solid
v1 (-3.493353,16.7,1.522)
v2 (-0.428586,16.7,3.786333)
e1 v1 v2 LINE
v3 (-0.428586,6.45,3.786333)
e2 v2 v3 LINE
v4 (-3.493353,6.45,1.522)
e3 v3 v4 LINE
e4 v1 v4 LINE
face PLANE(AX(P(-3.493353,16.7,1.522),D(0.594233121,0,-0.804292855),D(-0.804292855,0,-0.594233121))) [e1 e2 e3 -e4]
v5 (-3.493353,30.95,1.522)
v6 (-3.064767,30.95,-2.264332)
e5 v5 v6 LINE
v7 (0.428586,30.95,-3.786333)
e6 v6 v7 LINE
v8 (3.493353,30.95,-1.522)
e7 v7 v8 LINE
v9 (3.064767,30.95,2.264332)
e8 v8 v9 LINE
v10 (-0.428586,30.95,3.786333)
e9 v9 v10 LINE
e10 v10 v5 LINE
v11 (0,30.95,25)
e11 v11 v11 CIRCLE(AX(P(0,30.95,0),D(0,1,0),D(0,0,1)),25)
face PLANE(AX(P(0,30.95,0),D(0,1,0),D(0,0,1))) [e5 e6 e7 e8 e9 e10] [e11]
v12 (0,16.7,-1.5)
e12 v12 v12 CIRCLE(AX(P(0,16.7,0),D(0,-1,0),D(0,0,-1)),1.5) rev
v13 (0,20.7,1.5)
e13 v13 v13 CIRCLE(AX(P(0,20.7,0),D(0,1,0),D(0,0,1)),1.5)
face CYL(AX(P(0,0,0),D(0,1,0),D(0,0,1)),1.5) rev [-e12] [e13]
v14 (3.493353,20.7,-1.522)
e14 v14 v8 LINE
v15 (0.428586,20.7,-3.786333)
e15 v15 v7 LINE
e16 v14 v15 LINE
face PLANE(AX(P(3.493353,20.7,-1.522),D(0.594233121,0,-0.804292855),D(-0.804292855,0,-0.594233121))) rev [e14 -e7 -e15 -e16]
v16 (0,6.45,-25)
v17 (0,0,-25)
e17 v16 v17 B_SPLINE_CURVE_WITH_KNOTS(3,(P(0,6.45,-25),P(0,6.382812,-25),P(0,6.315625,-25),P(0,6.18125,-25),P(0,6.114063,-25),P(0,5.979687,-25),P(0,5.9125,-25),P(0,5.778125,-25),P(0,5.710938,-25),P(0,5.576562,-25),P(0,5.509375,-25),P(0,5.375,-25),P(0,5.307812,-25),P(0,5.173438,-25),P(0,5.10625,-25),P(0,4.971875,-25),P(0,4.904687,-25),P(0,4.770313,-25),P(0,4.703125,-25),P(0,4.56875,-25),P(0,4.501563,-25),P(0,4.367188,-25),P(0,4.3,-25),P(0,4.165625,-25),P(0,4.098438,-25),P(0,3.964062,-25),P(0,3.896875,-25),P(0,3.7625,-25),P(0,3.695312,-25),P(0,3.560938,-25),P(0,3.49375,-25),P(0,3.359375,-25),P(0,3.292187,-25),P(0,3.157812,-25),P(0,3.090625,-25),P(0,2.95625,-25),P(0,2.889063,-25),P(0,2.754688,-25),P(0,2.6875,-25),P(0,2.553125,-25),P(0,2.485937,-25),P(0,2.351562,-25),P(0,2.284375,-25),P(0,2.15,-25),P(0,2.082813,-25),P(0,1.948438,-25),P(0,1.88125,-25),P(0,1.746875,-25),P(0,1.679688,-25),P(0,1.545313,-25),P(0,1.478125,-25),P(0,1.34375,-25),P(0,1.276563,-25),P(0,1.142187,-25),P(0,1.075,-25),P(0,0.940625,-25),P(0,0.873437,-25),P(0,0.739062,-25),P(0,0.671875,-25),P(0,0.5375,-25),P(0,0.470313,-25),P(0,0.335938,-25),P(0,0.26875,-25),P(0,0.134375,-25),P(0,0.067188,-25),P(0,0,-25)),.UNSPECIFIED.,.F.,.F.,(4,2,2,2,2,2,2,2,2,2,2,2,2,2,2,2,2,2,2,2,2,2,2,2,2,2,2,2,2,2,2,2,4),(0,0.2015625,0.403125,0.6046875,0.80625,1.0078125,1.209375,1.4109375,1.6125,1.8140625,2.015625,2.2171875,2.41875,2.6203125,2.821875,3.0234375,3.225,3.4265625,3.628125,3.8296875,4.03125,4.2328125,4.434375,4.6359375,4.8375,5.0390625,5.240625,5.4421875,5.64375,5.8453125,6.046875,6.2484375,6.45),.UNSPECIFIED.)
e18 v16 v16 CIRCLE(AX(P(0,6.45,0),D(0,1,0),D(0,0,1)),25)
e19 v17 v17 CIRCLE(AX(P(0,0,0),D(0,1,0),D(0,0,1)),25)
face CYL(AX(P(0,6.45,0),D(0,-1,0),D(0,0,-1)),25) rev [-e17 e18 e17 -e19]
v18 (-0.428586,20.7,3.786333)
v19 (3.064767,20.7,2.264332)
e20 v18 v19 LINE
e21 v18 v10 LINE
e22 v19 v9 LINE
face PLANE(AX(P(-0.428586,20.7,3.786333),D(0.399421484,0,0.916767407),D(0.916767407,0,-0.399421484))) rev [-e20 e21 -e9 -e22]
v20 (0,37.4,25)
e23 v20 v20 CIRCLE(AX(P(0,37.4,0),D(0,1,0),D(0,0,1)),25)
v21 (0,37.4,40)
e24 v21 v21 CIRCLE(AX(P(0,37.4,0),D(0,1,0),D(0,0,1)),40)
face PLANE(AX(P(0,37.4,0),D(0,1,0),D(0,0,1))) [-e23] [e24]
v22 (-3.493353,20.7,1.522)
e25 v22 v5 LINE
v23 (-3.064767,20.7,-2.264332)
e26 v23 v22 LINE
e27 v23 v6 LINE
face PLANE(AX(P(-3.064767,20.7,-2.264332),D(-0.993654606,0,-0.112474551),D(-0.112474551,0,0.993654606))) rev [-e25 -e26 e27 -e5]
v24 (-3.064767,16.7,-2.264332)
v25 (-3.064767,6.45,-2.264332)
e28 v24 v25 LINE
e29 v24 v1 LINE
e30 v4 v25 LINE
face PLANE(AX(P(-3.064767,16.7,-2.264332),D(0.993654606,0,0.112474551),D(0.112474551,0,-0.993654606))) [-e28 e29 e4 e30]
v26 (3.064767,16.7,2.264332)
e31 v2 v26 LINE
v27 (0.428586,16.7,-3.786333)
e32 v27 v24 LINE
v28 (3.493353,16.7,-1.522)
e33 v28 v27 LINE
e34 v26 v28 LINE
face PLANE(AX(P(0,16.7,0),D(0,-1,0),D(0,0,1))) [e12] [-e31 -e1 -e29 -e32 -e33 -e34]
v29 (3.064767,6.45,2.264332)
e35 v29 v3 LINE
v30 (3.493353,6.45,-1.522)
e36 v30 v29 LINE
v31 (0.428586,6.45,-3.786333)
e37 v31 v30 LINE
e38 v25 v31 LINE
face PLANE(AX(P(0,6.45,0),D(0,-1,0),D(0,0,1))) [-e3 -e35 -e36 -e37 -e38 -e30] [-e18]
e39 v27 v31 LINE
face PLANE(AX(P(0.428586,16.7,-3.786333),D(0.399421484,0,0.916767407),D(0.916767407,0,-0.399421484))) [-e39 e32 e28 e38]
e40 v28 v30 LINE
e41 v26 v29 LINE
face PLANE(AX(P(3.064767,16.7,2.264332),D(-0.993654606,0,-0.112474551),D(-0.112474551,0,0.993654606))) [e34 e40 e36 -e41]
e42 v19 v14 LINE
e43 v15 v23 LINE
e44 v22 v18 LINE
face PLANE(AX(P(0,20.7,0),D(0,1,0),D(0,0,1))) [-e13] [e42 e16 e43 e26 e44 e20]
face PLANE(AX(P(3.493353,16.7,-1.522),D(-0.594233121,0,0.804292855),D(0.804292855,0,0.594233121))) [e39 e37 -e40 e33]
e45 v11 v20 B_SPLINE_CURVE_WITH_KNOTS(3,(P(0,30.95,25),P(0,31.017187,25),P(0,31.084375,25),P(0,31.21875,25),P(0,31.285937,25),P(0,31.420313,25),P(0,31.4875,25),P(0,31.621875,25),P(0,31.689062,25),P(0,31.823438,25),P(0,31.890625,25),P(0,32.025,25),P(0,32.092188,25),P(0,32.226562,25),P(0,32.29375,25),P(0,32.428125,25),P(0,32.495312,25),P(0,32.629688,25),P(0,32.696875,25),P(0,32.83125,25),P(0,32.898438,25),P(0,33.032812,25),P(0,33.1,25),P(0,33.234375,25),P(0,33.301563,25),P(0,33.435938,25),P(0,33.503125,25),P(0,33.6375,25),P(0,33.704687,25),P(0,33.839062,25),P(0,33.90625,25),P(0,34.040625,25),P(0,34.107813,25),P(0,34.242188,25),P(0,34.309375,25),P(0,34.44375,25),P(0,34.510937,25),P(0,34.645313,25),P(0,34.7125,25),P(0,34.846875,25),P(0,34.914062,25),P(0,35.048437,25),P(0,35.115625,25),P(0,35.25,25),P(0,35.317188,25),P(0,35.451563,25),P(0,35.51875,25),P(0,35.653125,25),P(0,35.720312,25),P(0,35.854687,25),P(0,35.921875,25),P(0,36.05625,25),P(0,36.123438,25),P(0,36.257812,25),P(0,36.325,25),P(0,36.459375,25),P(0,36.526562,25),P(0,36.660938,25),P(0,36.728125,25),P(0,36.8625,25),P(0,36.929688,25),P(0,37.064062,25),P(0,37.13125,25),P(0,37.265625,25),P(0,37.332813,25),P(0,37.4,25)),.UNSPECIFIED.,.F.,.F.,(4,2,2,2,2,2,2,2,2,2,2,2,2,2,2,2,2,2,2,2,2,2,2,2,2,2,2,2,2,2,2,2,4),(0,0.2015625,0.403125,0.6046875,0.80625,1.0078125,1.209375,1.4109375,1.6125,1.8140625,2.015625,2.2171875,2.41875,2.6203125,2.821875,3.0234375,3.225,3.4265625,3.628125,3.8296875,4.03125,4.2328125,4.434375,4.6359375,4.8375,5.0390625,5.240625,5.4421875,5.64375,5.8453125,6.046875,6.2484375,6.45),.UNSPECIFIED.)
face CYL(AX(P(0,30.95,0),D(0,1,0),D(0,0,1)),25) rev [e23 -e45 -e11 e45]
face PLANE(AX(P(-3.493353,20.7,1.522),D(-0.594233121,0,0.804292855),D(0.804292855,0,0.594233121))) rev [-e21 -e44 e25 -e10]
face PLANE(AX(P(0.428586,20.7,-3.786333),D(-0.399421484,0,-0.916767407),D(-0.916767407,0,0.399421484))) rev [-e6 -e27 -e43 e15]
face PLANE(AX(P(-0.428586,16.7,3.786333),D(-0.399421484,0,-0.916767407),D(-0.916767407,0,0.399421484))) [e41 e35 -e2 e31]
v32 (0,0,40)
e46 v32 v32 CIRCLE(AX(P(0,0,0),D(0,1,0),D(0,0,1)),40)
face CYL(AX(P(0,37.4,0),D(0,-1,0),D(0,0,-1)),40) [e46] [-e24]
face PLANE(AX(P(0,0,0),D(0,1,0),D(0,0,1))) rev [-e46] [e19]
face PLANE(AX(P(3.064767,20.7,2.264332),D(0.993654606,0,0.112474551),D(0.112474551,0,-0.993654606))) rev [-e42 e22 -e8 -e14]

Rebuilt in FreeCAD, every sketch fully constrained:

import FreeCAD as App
import Part
import Sketcher

doc = App.newDocument("Part")
body = doc.addObject("PartDesign::Body", "Body")

# Sketch on XZ plane
sketch1 = body.newObject("Sketcher::SketchObject", "Sketch")
sketch1.AttachmentSupport = (doc.getObject("XZ_Plane"), [""])
sketch1.MapMode = "FlatFace"
sketch1.addGeometry(Part.Circle(App.Vector(0, 0, 0), App.Vector(0, 0, 1), 40), False)
sketch1.addConstraint([
    Sketcher.Constraint("Coincident", 0, 3, -1, 1),
    Sketcher.Constraint("Diameter", 0, 80.0),
])
pad1 = body.newObject("PartDesign::Pad", "Pad")
pad1.Profile = sketch1
pad1.Length = 37.4
pad1.Reversed = True

# Sketch on XZ plane
sketch2 = body.newObject("Sketcher::SketchObject", "Sketch001")
sketch2.AttachmentSupport = (doc.getObject("XZ_Plane"), [""])
sketch2.MapMode = "FlatFace"
sketch2.AttachmentOffset = App.Placement(App.Vector(0, 0, -37.4), App.Rotation())
sketch2.addGeometry([
    Part.LineSegment(App.Vector(3.5, -1.5, 0), App.Vector(0.4, -3.8, 0)),  # 0
    Part.LineSegment(App.Vector(0.4, -3.8, 0), App.Vector(-3.1, -2.3, 0)),  # 1
    Part.LineSegment(App.Vector(-3.1, -2.3, 0), App.Vector(-3.5, 1.5, 0)),  # 2
    Part.LineSegment(App.Vector(-3.5, 1.5, 0), App.Vector(-0.4, 3.8, 0)),  # 3
    Part.LineSegment(App.Vector(-0.4, 3.8, 0), App.Vector(3.1, 2.3, 0)),  # 4
    Part.LineSegment(App.Vector(3.1, 2.3, 0), App.Vector(3.5, -1.5, 0)),  # 5
], False)
sketch2.addConstraint([
    Sketcher.Constraint("Coincident", 0, 2, 1, 1),
    Sketcher.Constraint("Coincident", 1, 2, 2, 1),
    Sketcher.Constraint("Coincident", 2, 2, 3, 1),
    Sketcher.Constraint("Coincident", 3, 2, 4, 1),
    Sketcher.Constraint("Coincident", 4, 2, 5, 1),
    Sketcher.Constraint("Coincident", 5, 2, 0, 1),
    Sketcher.Constraint("Symmetric", 0, 2, 3, 2, -1, 1),
    Sketcher.Constraint("Symmetric", 1, 2, 4, 2, -1, 1),
    Sketcher.Constraint("Symmetric", 2, 2, 5, 2, -1, 1),
    Sketcher.Constraint("Equal", 0, 1),
    Sketcher.Constraint("Equal", 1, 2),
    Sketcher.Constraint("DistanceY", -1, 1, 2, 2, 1.522),
    Sketcher.Constraint("DistanceY", 0, 2, 1, 2, 1.522),
    Sketcher.Constraint("Distance", 0, 3.810512),
    Sketcher.Constraint("DistanceX", 2, 2, 0, 2, 3.921939),
])
pocket1 = body.newObject("PartDesign::Pocket", "Pocket")
pocket1.Profile = sketch2
pocket1.Length = 16.7
pocket1.Reversed = True

# Sketch on XZ plane
sketch3 = body.newObject("Sketcher::SketchObject", "Sketch002")
sketch3.AttachmentSupport = (doc.getObject("XZ_Plane"), [""])
sketch3.MapMode = "FlatFace"
sketch3.AttachmentOffset = App.Placement(App.Vector(0, 0, -37.4), App.Rotation())
sketch3.addGeometry(Part.Circle(App.Vector(0, 0, 0), App.Vector(0, 0, 1), 25), False)
sketch3.addConstraint([
    Sketcher.Constraint("Coincident", 0, 3, -1, 1),
    Sketcher.Constraint("Diameter", 0, 50.0),
])
pocket2 = body.newObject("PartDesign::Pocket", "Pocket001")
pocket2.Profile = sketch3
pocket2.Length = 6.45
pocket2.Reversed = True

# Sketch on XZ plane
sketch4 = body.newObject("Sketcher::SketchObject", "Sketch003")
sketch4.AttachmentSupport = (doc.getObject("XZ_Plane"), [""])
sketch4.MapMode = "FlatFace"
sketch4.AttachmentOffset = App.Placement(App.Vector(0, 0, -20.7), App.Rotation())
sketch4.addGeometry(Part.Circle(App.Vector(0, 0, 0), App.Vector(0, 0, 1), 1.5), False)
sketch4.addConstraint([
    Sketcher.Constraint("Coincident", 0, 3, -1, 1),
    Sketcher.Constraint("Diameter", 0, 3.0),
])
pocket3 = body.newObject("PartDesign::Pocket", "Pocket002")
pocket3.Profile = sketch4
pocket3.Type = "ThroughAll"
pocket3.Reversed = True
doc.recompute()

datumplane = body.newObject("PartDesign::Plane", "DatumPlane")
datumplane.AttachmentSupport = (doc.getObject("XZ_Plane"), [""])
datumplane.MapMode = "FlatFace"
datumplane.AttachmentOffset = App.Placement(App.Vector(0, 0, -18.7), App.Rotation())
mirrored = body.newObject("PartDesign::Mirrored", "Mirrored")
mirrored.Originals = [pocket1, pocket2]
mirrored.MirrorPlane = (datumplane, [""])
body.Tip = mirrored

doc.recompute()
